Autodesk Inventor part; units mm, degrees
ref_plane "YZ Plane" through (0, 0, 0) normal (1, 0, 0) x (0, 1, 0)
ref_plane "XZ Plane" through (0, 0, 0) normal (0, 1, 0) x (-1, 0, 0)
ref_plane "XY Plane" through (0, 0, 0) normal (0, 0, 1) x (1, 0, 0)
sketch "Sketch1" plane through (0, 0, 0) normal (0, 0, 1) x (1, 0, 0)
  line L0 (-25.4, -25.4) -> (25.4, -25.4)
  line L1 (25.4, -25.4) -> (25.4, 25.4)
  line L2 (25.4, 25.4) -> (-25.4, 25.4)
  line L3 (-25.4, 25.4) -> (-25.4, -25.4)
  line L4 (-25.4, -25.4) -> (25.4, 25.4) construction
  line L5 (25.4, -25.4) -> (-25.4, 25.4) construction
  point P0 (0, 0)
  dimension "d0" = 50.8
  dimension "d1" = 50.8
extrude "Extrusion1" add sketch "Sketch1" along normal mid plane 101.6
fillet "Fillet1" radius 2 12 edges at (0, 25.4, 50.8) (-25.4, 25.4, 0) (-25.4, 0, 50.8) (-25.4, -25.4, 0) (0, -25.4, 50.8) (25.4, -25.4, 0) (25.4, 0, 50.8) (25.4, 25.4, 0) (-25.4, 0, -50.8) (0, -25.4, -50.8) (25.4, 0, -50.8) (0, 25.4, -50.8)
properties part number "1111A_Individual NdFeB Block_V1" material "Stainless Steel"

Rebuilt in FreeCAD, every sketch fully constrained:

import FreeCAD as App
import Part
import Sketcher
from FreeCAD import Vector


def add_polygon(sketch, points):
    """Adds a closed chain of lines whose ends are joined by coincident constraints."""
    first, n = sketch.GeometryCount, len(points)
    for a, b in zip(points, points[1:] + points[:1]):
        sketch.addGeometry(Part.LineSegment(App.Vector(*a, 0), App.Vector(*b, 0)), False)
    for i in range(n):
        sketch.addConstraint(Sketcher.Constraint("Coincident", first + i, 2, first + (i + 1) % n, 1))

doc = App.newDocument("Part")
body = doc.addObject("PartDesign::Body", "Body")

# Sketch on XY plane
sketch1 = body.newObject("Sketcher::SketchObject", "Sketch")
sketch1.AttachmentSupport = (doc.getObject("XY_Plane"), [""])
sketch1.MapMode = "FlatFace"
add_polygon(sketch1, [(-25.4, 25.4), (-25.4, -25.4), (25.4, -25.4), (25.4, 25.4)])  # lines 0-3
sketch1.addConstraint([
    Sketcher.Constraint("Vertical", 0),
    Sketcher.Constraint("Horizontal", 1),
    Sketcher.Constraint("Vertical", 2),
    Sketcher.Constraint("Horizontal", 3),
    Sketcher.Constraint("Symmetric", 0, 2, 2, 2, -1, 1),
    Sketcher.Constraint("Equal", 3, 0),
    Sketcher.Constraint("DistanceX", 1, 1, 1, 2, 50.8),
])
pad1 = body.newObject("PartDesign::Pad", "Pad")
pad1.Profile = sketch1
pad1.Length = 101.6
pad1.Midplane = True
doc.recompute()

fillet = body.newObject("PartDesign::Fillet", "Fillet")
fillet.Base = (pad1, ["Edge1"])
fillet.UseAllEdges = True
fillet.Radius = 2

doc.recompute()
